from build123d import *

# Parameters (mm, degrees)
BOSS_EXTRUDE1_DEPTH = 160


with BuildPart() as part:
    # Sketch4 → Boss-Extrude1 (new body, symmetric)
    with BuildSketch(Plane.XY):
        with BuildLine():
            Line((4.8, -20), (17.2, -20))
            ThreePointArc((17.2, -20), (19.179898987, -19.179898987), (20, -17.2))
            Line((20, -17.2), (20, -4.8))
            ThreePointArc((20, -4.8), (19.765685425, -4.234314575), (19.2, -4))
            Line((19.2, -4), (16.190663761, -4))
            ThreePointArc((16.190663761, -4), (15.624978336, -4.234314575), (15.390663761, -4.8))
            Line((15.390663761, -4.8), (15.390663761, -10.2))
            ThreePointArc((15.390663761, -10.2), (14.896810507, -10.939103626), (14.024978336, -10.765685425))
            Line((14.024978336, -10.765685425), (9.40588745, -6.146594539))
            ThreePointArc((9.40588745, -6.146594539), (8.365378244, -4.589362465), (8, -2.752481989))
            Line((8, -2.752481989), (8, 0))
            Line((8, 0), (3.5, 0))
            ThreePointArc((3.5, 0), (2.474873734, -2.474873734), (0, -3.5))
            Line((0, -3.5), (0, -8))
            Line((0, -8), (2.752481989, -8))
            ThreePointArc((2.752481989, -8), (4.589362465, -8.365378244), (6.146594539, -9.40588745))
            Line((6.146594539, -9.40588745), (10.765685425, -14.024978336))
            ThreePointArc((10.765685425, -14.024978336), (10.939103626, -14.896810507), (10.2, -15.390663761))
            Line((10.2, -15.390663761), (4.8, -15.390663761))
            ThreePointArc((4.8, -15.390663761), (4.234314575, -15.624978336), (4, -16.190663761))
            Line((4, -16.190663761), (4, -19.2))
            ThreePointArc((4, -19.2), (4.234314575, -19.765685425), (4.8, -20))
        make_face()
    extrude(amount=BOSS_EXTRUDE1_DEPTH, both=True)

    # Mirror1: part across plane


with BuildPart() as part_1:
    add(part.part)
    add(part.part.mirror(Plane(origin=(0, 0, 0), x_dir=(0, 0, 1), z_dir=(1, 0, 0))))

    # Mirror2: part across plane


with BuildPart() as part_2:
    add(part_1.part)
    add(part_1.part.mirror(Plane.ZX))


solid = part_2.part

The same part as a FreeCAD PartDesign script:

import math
import FreeCAD as App
import Part
import Sketcher

V = App.Vector

doc = App.newDocument("Part")
body = doc.addObject("PartDesign::Body", "Body")

sketch1 = body.newObject("Sketcher::SketchObject", "Sketch")
sketch1.AttachmentSupport = (doc.getObject("XY_Plane"), [""])
sketch1.MapMode = "FlatFace"
sketch1.addGeometry([
    Part.LineSegment(V(4.8, -20, 0), V(17.2, -20, 0)),
    Part.ArcOfCircle(Part.Circle(V(17.2, -17.2, 0), V(0, 0, 1), 2.8), math.radians(-90), math.radians(0)),
    Part.LineSegment(V(20, -17.2, 0), V(20, -4.8, 0)),
    Part.ArcOfCircle(Part.Circle(V(19.2, -4.8, 0), V(0, 0, 1), 0.8), math.radians(0), math.radians(90)),
    Part.LineSegment(V(19.2, -4, 0), V(16.2, -4, 0)),
    Part.ArcOfCircle(Part.Circle(V(16.2, -4.8, 0), V(0, 0, 1), 0.8), math.radians(90), math.radians(180)),
    Part.LineSegment(V(15.4, -4.8, 0), V(15.4, -10.2, 0)),
    Part.ArcOfCircle(Part.Circle(V(14.6, -10.2, 0), V(0, 0, 1), 0.8), math.radians(-135), math.radians(0)),
    Part.LineSegment(V(14, -10.8, 0), V(9.4, -6.1, 0)),
    Part.ArcOfCircle(Part.Circle(V(12.8, -2.8, 0), V(0, 0, 1), 4.8), math.radians(180), math.radians(225)),
    Part.LineSegment(V(8, -2.8, 0), V(8, 0, 0)),
    Part.LineSegment(V(8, 0, 0), V(3.5, 0, 0)),
    Part.ArcOfCircle(Part.Circle(V(0, 0, 0), V(0, 0, 1), 3.5), math.radians(-90), math.radians(0)),
    Part.LineSegment(V(0, -3.5, 0), V(0, -8, 0)),
    Part.LineSegment(V(0, -8, 0), V(2.8, -8, 0)),
    Part.ArcOfCircle(Part.Circle(V(2.8, -12.8, 0), V(0, 0, 1), 4.8), math.radians(45), math.radians(90)),
    Part.LineSegment(V(6.1, -9.4, 0), V(10.8, -14, 0)),
    Part.ArcOfCircle(Part.Circle(V(10.2, -14.6, 0), V(0, 0, 1), 0.8), math.radians(-90), math.radians(45)),
    Part.LineSegment(V(10.2, -15.4, 0), V(4.8, -15.4, 0)),
    Part.ArcOfCircle(Part.Circle(V(4.8, -16.2, 0), V(0, 0, 1), 0.8), math.radians(90), math.radians(180)),
    Part.LineSegment(V(4, -16.2, 0), V(4, -19.2, 0)),
    Part.ArcOfCircle(Part.Circle(V(4.8, -19.2, 0), V(0, 0, 1), 0.8), math.radians(180), math.radians(270)),
], False)
sketch1.addConstraint([
    Sketcher.Constraint("Tangent", 0, 2, 1, 1),
    Sketcher.Constraint("Tangent", 1, 2, 2, 1),
    Sketcher.Constraint("Tangent", 2, 2, 3, 1),
    Sketcher.Constraint("Tangent", 3, 2, 4, 1),
    Sketcher.Constraint("Tangent", 4, 2, 5, 1),
    Sketcher.Constraint("Tangent", 5, 2, 6, 1),
    Sketcher.Constraint("Tangent", 6, 2, 7, 2),
    Sketcher.Constraint("Tangent", 7, 1, 8, 1),
    Sketcher.Constraint("Tangent", 8, 2, 9, 2),
    Sketcher.Constraint("Tangent", 9, 1, 10, 1),
    Sketcher.Constraint("Coincident", 10, 2, 11, 1),
    Sketcher.Constraint("Coincident", 11, 2, 12, 2),
    Sketcher.Constraint("Coincident", 12, 1, 13, 1),
    Sketcher.Constraint("Coincident", 13, 2, 14, 1),
    Sketcher.Constraint("Tangent", 14, 2, 15, 2),
    Sketcher.Constraint("Tangent", 15, 1, 16, 1),
    Sketcher.Constraint("Tangent", 16, 2, 17, 2),
    Sketcher.Constraint("Tangent", 17, 1, 18, 1),
    Sketcher.Constraint("Tangent", 18, 2, 19, 1),
    Sketcher.Constraint("Tangent", 19, 2, 20, 1),
    Sketcher.Constraint("Tangent", 20, 2, 21, 1),
    Sketcher.Constraint("Tangent", 21, 2, 0, 1),
    Sketcher.Constraint("Horizontal", 0),
    Sketcher.Constraint("Vertical", 2),
    Sketcher.Constraint("Horizontal", 4),
    Sketcher.Constraint("Vertical", 6),
    Sketcher.Constraint("Vertical", 10),
    Sketcher.Constraint("Horizontal", 11),
    Sketcher.Constraint("Vertical", 13),
    Sketcher.Constraint("Horizontal", 14),
    Sketcher.Constraint("Horizontal", 18),
    Sketcher.Constraint("Vertical", 20),
    Sketcher.Constraint("Coincident", 12, 3, -1, 1),
    Sketcher.Constraint("Equal", 3, 5),
    Sketcher.Constraint("Equal", 5, 7),
    Sketcher.Constraint("Equal", 9, 15),
    Sketcher.Constraint("Equal", 7, 17),
    Sketcher.Constraint("Equal", 17, 19),
    Sketcher.Constraint("Equal", 19, 21),
    Sketcher.Constraint("PointOnObject", 10, 2, -1),
    Sketcher.Constraint("PointOnObject", 12, 1, -2),
    Sketcher.Constraint("Parallel", 8, 16),
    Sketcher.Constraint("Equal", 0, 2),
    Sketcher.Constraint("Equal", 18, 6),
    Sketcher.Constraint("Equal", 14, 10),
    Sketcher.Constraint("Equal", 11, 13),
    Sketcher.Constraint("Equal", 4, 20),
    Sketcher.Constraint("Equal", 8, 16),
    Sketcher.Constraint("Radius", 1, 2.8),
    Sketcher.Constraint("Radius", 3, 0.8),
    Sketcher.Constraint("Radius", 9, 4.8),
    Sketcher.Constraint("Radius", 12, 3.5),
    Sketcher.Constraint("DistanceX", 0, 1, 0, 2, 12.4),
    Sketcher.Constraint("DistanceX", 11, 2, 11, 1, 4.5),
    Sketcher.Constraint("DistanceX", 18, 2, 18, 1, 5.4),
    Sketcher.Constraint("DistanceY", 0, 2, -1, 1, 20.0),
    Sketcher.Constraint("DistanceX", 14, 1, 14, 2, 2.752482),
])
pad1 = body.newObject("PartDesign::Pad", "Pad")
pad1.Profile = sketch1
pad1.Length = 320
pad1.Midplane = True
body2 = doc.addObject("PartDesign::Body", "Body001")
doc.recompute()

body2.BaseFeature = body
doc.recompute()

mirroring = doc.addObject("Part::Mirroring", "Mirroring")
mirroring.Source = body
mirroring.Base = V(0, 0, 0)
mirroring.Normal = V(1, 0, 0)
body3 = doc.addObject("PartDesign::Body", "Body002")
body3.BaseFeature = mirroring
boolean = body2.newObject("PartDesign::Boolean", "Boolean")
boolean.Type = "Fuse"
boolean.addObjects([body3])
doc.recompute()
body4 = doc.addObject("PartDesign::Body", "Body003")
doc.recompute()

body4.BaseFeature = body2
doc.recompute()

mirroring2 = doc.addObject("Part::Mirroring", "Mirroring001")
mirroring2.Source = body2
mirroring2.Base = V(0, 0, 0)
mirroring2.Normal = V(0, 1, 0)
body5 = doc.addObject("PartDesign::Body", "Body004")
body5.BaseFeature = mirroring2
boolean2 = body4.newObject("PartDesign::Boolean", "Boolean001")
boolean2.Type = "Fuse"
boolean2.addObjects([body5])
doc.recompute()
mirroring.Visibility = False
mirroring2.Visibility = False

doc.recompute()
